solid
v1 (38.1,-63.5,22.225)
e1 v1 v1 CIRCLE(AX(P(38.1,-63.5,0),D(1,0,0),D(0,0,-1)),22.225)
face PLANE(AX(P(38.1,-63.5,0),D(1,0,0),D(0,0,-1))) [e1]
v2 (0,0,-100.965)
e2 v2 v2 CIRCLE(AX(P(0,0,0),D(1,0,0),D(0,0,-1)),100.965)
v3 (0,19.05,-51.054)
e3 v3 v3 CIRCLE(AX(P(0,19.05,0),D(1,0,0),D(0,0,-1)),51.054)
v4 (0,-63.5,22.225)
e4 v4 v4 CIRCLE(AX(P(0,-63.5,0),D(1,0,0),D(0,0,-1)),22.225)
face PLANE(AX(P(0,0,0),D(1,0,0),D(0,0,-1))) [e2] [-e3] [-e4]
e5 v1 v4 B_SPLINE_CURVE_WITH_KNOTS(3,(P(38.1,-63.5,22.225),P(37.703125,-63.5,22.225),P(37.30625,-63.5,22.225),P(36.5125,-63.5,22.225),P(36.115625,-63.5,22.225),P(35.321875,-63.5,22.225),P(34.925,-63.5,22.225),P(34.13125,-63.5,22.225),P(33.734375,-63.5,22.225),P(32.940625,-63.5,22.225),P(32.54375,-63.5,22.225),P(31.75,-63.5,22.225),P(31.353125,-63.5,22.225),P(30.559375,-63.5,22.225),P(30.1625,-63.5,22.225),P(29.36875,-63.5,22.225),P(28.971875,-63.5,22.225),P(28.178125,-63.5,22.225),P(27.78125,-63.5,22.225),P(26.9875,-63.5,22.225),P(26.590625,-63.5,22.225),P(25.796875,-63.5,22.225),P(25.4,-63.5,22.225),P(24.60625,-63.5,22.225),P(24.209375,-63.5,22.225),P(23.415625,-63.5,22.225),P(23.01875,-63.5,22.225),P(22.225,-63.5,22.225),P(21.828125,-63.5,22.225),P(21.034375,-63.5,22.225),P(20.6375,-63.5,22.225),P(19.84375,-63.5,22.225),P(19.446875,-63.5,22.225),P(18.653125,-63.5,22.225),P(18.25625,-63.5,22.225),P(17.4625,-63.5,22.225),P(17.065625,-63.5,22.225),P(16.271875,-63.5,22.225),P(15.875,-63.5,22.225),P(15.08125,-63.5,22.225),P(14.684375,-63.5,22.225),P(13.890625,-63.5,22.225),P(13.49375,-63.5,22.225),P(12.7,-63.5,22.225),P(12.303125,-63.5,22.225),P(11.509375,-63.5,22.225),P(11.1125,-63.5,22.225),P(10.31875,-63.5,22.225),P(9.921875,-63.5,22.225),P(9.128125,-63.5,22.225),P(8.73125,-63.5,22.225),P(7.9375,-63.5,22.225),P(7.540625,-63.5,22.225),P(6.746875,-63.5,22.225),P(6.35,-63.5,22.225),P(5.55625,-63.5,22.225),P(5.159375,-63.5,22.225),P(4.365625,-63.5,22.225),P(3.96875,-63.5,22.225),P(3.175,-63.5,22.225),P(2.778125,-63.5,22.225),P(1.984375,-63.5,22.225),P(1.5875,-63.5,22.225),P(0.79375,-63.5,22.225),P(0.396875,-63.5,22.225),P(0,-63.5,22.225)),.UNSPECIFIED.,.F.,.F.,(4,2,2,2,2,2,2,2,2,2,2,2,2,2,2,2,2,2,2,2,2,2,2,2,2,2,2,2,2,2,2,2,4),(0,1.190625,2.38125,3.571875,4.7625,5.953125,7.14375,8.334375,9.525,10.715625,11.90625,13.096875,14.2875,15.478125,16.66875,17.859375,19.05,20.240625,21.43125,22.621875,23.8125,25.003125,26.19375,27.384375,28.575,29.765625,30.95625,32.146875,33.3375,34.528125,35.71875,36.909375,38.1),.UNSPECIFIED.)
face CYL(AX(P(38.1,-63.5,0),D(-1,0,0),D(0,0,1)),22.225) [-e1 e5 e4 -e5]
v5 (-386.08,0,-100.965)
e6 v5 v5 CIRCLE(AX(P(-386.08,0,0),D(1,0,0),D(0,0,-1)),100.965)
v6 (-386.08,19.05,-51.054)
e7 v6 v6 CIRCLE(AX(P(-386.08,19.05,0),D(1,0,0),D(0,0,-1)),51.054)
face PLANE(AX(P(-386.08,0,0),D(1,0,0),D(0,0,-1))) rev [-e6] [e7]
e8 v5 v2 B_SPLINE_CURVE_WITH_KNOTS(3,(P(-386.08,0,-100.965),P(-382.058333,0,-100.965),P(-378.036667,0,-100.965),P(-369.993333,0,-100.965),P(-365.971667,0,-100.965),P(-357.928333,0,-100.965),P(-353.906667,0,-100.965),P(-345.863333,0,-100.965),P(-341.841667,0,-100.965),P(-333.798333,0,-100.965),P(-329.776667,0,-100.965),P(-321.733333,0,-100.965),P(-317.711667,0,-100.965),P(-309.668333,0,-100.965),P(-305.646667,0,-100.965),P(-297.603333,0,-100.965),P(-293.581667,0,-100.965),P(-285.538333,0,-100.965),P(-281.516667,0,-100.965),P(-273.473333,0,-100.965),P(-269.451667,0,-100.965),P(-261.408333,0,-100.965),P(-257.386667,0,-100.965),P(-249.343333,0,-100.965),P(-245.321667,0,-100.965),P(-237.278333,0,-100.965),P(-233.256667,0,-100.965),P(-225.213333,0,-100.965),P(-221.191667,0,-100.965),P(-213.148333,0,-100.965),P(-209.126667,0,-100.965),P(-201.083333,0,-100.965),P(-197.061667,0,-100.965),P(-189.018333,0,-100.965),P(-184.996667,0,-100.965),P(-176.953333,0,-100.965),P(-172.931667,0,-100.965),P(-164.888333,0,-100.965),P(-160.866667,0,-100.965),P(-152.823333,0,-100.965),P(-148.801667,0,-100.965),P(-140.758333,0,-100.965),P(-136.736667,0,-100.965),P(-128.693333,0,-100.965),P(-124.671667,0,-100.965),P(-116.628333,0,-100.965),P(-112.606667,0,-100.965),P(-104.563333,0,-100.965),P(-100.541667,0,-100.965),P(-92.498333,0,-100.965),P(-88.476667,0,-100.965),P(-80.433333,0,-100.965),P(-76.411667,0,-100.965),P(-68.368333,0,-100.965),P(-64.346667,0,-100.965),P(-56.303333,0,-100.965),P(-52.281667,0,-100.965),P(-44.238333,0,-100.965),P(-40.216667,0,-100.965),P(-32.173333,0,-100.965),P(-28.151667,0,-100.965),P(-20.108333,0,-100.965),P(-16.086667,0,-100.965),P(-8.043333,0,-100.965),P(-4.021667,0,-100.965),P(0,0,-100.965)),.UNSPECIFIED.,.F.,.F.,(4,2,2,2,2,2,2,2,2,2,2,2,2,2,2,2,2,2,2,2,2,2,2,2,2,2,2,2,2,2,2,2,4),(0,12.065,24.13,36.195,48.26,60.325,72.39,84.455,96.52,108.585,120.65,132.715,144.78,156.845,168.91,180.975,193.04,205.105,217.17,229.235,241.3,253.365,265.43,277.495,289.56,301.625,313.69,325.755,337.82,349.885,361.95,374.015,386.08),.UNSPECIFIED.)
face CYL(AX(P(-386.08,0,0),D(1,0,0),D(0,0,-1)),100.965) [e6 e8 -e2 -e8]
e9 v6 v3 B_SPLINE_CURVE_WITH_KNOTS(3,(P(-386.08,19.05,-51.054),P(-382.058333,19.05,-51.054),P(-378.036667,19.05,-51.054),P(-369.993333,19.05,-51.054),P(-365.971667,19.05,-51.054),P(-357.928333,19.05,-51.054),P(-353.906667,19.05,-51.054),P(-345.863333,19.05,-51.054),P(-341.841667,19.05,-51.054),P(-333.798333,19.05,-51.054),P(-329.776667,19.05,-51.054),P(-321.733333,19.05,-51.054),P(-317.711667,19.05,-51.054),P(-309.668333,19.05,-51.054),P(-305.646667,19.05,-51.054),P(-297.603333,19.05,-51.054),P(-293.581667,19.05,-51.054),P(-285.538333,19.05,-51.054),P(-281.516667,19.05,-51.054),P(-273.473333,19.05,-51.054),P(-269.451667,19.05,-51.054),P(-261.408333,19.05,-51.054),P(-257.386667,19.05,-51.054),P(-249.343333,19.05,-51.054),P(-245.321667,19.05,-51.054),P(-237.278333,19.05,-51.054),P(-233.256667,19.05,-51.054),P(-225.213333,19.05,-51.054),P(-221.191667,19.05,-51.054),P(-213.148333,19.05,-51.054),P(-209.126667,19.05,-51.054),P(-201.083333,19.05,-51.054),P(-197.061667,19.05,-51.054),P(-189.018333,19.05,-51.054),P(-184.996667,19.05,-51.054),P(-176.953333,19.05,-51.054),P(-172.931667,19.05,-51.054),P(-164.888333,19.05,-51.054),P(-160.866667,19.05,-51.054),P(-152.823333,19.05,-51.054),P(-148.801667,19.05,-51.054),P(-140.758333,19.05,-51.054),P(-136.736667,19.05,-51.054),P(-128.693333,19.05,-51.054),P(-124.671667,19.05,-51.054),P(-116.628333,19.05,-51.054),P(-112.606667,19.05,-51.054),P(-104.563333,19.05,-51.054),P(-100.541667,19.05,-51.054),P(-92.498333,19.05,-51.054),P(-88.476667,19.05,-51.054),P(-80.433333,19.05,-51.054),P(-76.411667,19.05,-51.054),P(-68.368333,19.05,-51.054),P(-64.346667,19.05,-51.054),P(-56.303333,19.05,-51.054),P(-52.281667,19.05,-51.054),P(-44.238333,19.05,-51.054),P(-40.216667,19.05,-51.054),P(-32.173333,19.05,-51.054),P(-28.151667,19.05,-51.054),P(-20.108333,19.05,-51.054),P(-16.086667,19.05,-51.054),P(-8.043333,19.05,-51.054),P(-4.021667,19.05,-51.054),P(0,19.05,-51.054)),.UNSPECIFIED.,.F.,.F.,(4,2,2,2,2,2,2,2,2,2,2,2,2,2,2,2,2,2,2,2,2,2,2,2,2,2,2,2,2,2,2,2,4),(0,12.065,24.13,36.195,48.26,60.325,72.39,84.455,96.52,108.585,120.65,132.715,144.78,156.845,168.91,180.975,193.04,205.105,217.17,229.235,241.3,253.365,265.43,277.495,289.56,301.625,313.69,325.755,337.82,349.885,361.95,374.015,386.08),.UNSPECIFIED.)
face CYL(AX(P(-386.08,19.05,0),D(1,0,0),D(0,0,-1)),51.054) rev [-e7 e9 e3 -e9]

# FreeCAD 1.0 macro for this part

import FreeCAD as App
import Part
import Sketcher
from FreeCAD import Vector
Q = App.Units.Quantity

doc = App.newDocument("Part")
body = doc.addObject("PartDesign::Body", "Body")

sketch1 = doc.addObject("Sketcher::SketchObject", "Sketch")
body.addObject(sketch1)
sketch1.AttachmentSupport = (doc.YZ_Plane, [""])
sketch1.MapMode = "FlatFace"
sketch1.addGeometry(Part.Circle(Vector(0, 0, 0), Vector(0, 0, 1), 101), False)
sketch1.addConstraint(Sketcher.Constraint("Coincident", 0, 3, -1, 1))
sketch1.addConstraint(Sketcher.Constraint("Diameter", 0, Q("7.95 in")))
pad1 = doc.addObject("PartDesign::Pad", "Pad")
body.addObject(pad1)
pad1.Profile = sketch1
pad1.Length = Q("15.2 in")
pad1.Reversed = True

sketch2 = doc.addObject("Sketcher::SketchObject", "Sketch001")
body.addObject(sketch2)
sketch2.AttachmentSupport = (doc.YZ_Plane, [""])
sketch2.MapMode = "FlatFace"
sketch2.addGeometry(Part.Circle(Vector(19, 0, 0), Vector(0, 0, 1), 51), False)
sketch2.addConstraint(Sketcher.Constraint("PointOnObject", 0, 3, -1))
sketch2.addConstraint(Sketcher.Constraint("Diameter", 0, Q("4.02 in")))
sketch2.addConstraint(Sketcher.Constraint("DistanceX", -1, 1, 0, 3, Q("0.75 in")))
pocket1 = doc.addObject("PartDesign::Pocket", "Pocket")
body.addObject(pocket1)
pocket1.Profile = sketch2
pocket1.Type = "ThroughAll"

sketch3 = doc.addObject("Sketcher::SketchObject", "Sketch002")
body.addObject(sketch3)
sketch3.AttachmentSupport = (doc.YZ_Plane, [""])
sketch3.MapMode = "FlatFace"
sketch3.addGeometry(Part.Circle(Vector(-64, 0, 0), Vector(0, 0, 1), 22), False)
sketch3.addConstraint(Sketcher.Constraint("PointOnObject", 0, 3, -1))
sketch3.addConstraint(Sketcher.Constraint("Diameter", 0, Q("1.75 in")))
sketch3.addConstraint(Sketcher.Constraint("DistanceX", 0, 3, -1, 1, Q("2.5 in")))
pad2 = doc.addObject("PartDesign::Pad", "Pad001")
body.addObject(pad2)
pad2.Profile = sketch3
pad2.Length = Q("1.5 in")

doc.recompute()
